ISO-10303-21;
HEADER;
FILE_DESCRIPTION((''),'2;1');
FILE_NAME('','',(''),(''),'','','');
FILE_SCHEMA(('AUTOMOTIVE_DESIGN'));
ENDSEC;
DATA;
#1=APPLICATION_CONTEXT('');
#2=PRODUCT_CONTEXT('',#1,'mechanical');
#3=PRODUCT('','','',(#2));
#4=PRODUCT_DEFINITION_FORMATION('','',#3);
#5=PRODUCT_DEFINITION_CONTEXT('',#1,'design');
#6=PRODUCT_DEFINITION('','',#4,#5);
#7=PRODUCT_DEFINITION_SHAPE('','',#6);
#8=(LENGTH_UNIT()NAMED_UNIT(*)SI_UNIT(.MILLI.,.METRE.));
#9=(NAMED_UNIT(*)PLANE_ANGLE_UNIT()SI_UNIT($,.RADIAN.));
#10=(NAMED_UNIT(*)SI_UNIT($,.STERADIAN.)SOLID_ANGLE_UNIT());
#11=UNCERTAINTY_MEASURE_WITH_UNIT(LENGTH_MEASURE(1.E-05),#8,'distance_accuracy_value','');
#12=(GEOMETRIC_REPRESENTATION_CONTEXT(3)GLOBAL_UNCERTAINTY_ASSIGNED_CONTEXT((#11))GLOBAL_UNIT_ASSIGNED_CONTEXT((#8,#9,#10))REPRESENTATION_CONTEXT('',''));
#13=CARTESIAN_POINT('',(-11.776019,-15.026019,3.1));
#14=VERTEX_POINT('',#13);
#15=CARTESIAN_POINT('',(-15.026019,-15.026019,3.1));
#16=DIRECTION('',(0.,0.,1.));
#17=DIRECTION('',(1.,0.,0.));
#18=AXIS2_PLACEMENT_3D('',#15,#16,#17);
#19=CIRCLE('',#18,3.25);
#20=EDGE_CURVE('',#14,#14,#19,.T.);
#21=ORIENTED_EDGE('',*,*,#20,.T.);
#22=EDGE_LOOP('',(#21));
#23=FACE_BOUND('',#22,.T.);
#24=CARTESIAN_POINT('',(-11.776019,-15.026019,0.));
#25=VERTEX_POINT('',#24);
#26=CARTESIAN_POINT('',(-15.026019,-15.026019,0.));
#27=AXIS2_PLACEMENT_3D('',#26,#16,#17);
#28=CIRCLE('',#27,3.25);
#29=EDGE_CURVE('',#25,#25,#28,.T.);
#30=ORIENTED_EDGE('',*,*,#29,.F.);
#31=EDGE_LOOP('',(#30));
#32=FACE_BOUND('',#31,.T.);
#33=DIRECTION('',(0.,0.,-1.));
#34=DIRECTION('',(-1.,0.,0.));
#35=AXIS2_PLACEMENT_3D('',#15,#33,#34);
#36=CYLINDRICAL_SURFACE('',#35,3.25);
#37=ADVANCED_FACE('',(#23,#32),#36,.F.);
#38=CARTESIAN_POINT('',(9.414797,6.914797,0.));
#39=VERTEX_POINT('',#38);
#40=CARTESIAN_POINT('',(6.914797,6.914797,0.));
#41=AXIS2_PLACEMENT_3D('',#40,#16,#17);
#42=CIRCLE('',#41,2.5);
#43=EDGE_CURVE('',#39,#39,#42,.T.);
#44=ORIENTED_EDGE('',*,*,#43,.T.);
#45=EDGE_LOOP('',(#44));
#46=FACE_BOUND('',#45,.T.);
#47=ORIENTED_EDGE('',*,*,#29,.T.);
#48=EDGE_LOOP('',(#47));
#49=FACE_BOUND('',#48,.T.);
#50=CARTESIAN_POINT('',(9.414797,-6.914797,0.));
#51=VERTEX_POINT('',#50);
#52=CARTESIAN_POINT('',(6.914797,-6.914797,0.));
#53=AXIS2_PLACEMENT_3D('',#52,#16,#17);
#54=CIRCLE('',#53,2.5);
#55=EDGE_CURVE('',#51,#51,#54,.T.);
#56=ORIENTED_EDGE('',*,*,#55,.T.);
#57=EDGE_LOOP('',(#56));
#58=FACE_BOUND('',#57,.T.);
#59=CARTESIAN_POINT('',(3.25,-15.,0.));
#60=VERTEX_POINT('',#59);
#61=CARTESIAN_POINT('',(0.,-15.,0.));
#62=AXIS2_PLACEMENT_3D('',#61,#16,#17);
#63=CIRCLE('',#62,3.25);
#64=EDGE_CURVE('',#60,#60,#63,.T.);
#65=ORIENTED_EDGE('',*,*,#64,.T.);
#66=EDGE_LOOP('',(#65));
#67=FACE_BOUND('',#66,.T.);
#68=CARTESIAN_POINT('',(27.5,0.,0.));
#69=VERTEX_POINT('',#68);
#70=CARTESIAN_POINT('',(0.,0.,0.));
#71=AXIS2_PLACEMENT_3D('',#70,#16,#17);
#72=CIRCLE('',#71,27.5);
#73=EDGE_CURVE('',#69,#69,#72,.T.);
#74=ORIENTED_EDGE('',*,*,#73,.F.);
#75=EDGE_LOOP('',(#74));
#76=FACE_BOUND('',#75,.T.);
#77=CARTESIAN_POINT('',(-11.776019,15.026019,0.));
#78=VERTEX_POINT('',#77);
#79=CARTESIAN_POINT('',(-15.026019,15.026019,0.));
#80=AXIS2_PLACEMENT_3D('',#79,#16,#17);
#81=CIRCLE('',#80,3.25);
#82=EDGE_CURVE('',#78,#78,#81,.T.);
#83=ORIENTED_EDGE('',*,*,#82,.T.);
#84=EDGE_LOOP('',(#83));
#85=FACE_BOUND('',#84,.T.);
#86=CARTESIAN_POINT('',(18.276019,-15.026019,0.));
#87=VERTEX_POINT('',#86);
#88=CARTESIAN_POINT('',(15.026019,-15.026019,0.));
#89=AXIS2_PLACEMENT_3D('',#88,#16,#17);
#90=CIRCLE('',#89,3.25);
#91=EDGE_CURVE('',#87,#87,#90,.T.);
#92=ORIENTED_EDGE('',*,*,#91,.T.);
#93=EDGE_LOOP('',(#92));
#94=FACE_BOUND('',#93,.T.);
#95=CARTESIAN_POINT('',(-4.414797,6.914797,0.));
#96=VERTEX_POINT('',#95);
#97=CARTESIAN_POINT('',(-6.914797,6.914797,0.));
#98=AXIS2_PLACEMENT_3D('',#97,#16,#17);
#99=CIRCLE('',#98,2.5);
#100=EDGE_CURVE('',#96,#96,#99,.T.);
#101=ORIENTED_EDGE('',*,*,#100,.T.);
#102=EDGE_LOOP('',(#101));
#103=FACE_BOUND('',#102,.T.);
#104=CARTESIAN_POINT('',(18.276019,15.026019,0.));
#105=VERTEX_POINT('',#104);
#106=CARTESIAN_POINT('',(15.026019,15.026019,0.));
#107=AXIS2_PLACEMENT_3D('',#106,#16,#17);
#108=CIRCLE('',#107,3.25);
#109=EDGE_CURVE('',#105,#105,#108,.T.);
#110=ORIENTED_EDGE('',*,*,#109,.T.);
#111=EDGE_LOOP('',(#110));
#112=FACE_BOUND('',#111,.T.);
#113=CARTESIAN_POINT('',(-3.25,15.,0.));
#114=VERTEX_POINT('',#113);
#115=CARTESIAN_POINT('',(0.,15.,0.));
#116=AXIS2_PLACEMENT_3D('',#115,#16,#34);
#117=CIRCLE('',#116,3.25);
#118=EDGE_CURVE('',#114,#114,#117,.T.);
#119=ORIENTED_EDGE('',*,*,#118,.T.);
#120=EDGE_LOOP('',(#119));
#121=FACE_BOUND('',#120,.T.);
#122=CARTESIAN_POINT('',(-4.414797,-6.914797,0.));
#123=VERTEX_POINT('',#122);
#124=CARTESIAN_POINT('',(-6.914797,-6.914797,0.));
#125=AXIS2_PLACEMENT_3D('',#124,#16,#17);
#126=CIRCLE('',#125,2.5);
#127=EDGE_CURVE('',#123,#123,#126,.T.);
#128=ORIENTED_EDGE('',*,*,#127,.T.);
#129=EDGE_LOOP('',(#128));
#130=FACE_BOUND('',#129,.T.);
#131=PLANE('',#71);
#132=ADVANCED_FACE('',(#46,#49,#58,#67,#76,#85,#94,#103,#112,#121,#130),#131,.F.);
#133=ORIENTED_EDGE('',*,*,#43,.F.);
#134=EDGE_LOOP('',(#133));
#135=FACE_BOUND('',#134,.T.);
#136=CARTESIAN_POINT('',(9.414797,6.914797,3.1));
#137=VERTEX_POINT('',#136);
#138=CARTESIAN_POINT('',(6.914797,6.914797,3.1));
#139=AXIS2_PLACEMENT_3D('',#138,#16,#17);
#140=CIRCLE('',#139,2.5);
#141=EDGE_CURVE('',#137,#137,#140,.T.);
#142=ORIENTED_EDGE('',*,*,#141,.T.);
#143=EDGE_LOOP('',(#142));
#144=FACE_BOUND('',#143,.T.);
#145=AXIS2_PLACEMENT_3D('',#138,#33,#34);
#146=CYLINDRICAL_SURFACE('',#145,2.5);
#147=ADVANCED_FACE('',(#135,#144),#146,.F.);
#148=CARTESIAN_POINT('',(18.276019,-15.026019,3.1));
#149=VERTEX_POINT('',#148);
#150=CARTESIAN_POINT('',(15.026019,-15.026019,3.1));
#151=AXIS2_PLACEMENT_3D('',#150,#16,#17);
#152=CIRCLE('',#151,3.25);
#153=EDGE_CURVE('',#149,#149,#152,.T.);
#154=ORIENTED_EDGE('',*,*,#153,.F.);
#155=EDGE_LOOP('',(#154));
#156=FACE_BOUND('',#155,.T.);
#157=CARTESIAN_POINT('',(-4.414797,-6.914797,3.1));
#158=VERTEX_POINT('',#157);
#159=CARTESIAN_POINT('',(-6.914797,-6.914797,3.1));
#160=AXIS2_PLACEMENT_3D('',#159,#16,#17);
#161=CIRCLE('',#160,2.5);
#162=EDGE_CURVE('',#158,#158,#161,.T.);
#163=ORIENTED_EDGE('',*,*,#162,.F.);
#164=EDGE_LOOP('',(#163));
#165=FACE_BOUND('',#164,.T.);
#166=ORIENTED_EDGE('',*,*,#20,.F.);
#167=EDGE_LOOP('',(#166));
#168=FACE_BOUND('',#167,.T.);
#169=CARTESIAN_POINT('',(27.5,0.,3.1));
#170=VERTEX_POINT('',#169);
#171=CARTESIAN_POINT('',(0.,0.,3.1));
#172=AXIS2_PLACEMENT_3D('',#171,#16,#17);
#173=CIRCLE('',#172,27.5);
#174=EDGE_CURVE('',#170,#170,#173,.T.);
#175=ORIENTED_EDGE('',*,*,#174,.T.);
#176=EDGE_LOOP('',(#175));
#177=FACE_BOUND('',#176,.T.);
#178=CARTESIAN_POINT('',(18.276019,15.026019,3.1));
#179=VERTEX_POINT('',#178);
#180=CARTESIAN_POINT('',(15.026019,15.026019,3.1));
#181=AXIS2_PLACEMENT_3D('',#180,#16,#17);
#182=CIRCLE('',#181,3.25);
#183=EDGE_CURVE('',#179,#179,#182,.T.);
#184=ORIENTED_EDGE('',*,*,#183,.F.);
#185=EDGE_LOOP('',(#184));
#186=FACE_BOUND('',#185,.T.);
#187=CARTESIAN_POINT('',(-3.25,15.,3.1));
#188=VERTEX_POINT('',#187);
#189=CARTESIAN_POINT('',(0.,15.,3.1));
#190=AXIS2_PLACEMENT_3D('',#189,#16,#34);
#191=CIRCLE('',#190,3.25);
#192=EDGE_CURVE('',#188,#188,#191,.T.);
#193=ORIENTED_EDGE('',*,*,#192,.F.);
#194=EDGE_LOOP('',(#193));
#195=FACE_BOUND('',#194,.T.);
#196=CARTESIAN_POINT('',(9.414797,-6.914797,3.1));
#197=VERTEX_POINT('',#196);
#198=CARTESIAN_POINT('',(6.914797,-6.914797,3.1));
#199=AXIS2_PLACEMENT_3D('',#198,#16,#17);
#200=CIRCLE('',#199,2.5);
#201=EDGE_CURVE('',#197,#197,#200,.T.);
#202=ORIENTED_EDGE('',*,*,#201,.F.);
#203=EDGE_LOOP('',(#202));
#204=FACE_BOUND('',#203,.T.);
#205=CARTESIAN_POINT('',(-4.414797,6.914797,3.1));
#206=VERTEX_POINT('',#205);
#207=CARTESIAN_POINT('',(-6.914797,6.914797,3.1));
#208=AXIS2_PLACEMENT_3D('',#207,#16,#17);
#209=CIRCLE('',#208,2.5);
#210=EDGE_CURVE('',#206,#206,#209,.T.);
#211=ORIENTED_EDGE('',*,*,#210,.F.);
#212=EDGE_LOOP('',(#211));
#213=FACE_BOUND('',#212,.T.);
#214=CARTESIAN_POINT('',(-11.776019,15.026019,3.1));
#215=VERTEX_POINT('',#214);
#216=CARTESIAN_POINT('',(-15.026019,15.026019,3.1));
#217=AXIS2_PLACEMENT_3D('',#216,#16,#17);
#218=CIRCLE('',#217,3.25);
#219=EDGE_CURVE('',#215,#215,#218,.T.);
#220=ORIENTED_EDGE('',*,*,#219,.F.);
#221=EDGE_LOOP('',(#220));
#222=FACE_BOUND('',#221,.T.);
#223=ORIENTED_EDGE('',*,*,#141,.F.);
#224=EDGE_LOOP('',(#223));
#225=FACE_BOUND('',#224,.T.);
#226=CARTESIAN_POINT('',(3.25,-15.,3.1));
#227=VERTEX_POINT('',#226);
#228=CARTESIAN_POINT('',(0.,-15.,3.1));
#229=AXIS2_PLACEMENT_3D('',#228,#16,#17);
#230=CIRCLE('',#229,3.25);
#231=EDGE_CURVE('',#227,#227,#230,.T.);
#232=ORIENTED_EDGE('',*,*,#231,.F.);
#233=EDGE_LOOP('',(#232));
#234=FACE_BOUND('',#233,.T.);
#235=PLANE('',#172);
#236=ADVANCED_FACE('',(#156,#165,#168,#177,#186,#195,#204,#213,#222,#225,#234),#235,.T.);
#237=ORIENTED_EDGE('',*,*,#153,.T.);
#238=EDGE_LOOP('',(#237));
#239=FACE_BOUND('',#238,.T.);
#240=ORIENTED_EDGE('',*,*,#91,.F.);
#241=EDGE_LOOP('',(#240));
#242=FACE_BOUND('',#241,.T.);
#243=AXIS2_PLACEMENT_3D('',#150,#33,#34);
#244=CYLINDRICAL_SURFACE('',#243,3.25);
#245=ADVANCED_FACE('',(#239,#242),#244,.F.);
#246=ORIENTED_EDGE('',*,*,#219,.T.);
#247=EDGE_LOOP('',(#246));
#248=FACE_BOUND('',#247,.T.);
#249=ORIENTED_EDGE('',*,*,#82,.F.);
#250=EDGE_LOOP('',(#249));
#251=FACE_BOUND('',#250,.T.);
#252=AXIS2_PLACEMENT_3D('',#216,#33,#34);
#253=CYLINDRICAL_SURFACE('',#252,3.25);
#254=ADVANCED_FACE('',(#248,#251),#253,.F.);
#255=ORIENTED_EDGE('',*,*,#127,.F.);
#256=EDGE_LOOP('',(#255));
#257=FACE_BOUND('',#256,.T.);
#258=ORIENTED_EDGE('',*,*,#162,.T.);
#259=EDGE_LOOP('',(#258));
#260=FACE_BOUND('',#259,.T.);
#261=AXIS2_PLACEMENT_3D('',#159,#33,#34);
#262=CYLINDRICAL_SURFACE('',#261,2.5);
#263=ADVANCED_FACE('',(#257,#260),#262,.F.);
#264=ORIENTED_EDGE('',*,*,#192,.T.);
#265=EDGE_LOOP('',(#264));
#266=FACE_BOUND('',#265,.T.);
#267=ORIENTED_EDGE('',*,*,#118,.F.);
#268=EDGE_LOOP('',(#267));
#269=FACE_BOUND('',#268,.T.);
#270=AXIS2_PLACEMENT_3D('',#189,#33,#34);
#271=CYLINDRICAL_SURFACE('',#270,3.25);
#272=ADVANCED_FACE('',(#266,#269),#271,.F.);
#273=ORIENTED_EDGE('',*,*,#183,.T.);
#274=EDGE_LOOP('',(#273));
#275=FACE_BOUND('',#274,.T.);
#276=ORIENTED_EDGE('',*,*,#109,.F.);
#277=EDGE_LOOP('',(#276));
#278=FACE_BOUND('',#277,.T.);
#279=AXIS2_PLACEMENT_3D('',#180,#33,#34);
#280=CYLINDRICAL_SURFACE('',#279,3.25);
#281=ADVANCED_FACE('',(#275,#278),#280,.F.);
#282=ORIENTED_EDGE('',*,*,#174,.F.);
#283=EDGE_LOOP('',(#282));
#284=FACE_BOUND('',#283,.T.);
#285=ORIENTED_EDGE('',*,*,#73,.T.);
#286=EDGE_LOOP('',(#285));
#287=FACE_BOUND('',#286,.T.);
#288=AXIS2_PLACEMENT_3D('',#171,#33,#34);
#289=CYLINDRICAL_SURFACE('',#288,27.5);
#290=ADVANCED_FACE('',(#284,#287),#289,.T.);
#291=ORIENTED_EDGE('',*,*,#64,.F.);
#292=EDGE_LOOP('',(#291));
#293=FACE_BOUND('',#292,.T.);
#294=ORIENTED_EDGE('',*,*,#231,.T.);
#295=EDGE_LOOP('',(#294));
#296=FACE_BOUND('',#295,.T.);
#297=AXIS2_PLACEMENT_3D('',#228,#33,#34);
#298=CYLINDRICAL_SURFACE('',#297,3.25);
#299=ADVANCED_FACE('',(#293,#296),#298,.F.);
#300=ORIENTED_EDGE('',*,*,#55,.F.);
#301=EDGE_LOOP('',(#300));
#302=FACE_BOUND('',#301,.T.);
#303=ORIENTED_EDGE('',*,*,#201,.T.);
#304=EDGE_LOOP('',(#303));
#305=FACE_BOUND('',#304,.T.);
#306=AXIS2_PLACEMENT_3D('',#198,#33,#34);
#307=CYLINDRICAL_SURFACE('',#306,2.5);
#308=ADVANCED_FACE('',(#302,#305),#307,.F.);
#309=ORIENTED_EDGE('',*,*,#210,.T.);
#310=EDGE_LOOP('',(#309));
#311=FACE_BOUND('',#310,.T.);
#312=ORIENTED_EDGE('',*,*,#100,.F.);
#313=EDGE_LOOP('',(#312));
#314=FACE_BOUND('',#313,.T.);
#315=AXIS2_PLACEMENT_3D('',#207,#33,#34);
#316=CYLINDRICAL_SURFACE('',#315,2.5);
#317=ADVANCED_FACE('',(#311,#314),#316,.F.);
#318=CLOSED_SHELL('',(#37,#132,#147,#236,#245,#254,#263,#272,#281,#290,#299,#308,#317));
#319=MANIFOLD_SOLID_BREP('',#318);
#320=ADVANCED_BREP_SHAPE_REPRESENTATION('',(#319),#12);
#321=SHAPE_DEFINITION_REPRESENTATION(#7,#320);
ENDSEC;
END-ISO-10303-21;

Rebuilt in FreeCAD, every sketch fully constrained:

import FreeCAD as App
import Part
import Sketcher

V = App.Vector

doc = App.newDocument("Part")
body = doc.addObject("PartDesign::Body", "Body")

sketch1 = doc.addObject("Sketcher::SketchObject", "Sketch")
body.addObject(sketch1)
sketch1.AttachmentSupport = (doc.XY_Plane, [""])
sketch1.MapMode = "FlatFace"
sketch1.addGeometry([
    Part.Circle(V(0, 0, 0), V(0, 0, 1), 27.5),
    Part.Circle(V(-15.026019, -15.026019, 0), V(0, 0, 1), 3.25),
    Part.Circle(V(-6.914797, -6.914797, 0), V(0, 0, 1), 2.5),
    Part.Circle(V(0, -15, 0), V(0, 0, 1), 3.25),
    Part.Circle(V(15.026019, -15.026019, 0), V(0, 0, 1), 3.25),
    Part.Circle(V(6.914797, -6.914797, 0), V(0, 0, 1), 2.5),
    Part.Circle(V(-6.914797, 6.914797, 0), V(0, 0, 1), 2.5),
    Part.Circle(V(-15.026019, 15.026019, 0), V(0, 0, 1), 3.25),
    Part.Circle(V(6.914797, 6.914797, 0), V(0, 0, 1), 2.5),
    Part.Circle(V(0, 15, 0), V(0, 0, 1), 3.25),
    Part.Circle(V(15.026019, 15.026019, 0), V(0, 0, 1), 3.25),
], False)
sketch1.addConstraint([
    Sketcher.Constraint("Coincident", 0, 3, -1, 1),
    Sketcher.Constraint("Equal", 1, 3),
    Sketcher.Constraint("Equal", 3, 4),
    Sketcher.Constraint("Equal", 2, 5),
    Sketcher.Constraint("Equal", 5, 6),
    Sketcher.Constraint("Equal", 4, 7),
    Sketcher.Constraint("Equal", 6, 8),
    Sketcher.Constraint("Equal", 7, 9),
    Sketcher.Constraint("Equal", 9, 10),
    Sketcher.Constraint("Symmetric", 5, 3, 6, 3, -1, 1),
    Sketcher.Constraint("Symmetric", 4, 3, 7, 3, -1, 1),
    Sketcher.Constraint("Symmetric", 2, 3, 8, 3, -1, 1),
    Sketcher.Constraint("Symmetric", 3, 3, 9, 3, -1, 1),
    Sketcher.Constraint("Symmetric", 1, 3, 10, 3, -1, 1),
    Sketcher.Constraint("Symmetric", 1, 3, 4, 3, -2),
    Sketcher.Constraint("Symmetric", 2, 3, 5, 3, -2),
    Sketcher.Constraint("PointOnObject", 3, 3, -2),
    Sketcher.Constraint("Diameter", 0, 55.0),
    Sketcher.Constraint("Diameter", 2, 5.0),
    Sketcher.Constraint("Diameter", 1, 6.5),
    Sketcher.Constraint("DistanceY", 3, 3, -1, 1, 15.0),
    Sketcher.Constraint("DistanceX", 1, 3, -1, 1, 15.026019),
    Sketcher.Constraint("DistanceY", 1, 3, -1, 1, 15.026019),
    Sketcher.Constraint("DistanceX", 1, 3, 2, 3, 8.111222),
    Sketcher.Constraint("DistanceY", 1, 3, 2, 3, 8.111222),
])
pad1 = doc.addObject("PartDesign::Pad", "Pad")
body.addObject(pad1)
pad1.Profile = sketch1
pad1.Length = 3.1

doc.recompute()
